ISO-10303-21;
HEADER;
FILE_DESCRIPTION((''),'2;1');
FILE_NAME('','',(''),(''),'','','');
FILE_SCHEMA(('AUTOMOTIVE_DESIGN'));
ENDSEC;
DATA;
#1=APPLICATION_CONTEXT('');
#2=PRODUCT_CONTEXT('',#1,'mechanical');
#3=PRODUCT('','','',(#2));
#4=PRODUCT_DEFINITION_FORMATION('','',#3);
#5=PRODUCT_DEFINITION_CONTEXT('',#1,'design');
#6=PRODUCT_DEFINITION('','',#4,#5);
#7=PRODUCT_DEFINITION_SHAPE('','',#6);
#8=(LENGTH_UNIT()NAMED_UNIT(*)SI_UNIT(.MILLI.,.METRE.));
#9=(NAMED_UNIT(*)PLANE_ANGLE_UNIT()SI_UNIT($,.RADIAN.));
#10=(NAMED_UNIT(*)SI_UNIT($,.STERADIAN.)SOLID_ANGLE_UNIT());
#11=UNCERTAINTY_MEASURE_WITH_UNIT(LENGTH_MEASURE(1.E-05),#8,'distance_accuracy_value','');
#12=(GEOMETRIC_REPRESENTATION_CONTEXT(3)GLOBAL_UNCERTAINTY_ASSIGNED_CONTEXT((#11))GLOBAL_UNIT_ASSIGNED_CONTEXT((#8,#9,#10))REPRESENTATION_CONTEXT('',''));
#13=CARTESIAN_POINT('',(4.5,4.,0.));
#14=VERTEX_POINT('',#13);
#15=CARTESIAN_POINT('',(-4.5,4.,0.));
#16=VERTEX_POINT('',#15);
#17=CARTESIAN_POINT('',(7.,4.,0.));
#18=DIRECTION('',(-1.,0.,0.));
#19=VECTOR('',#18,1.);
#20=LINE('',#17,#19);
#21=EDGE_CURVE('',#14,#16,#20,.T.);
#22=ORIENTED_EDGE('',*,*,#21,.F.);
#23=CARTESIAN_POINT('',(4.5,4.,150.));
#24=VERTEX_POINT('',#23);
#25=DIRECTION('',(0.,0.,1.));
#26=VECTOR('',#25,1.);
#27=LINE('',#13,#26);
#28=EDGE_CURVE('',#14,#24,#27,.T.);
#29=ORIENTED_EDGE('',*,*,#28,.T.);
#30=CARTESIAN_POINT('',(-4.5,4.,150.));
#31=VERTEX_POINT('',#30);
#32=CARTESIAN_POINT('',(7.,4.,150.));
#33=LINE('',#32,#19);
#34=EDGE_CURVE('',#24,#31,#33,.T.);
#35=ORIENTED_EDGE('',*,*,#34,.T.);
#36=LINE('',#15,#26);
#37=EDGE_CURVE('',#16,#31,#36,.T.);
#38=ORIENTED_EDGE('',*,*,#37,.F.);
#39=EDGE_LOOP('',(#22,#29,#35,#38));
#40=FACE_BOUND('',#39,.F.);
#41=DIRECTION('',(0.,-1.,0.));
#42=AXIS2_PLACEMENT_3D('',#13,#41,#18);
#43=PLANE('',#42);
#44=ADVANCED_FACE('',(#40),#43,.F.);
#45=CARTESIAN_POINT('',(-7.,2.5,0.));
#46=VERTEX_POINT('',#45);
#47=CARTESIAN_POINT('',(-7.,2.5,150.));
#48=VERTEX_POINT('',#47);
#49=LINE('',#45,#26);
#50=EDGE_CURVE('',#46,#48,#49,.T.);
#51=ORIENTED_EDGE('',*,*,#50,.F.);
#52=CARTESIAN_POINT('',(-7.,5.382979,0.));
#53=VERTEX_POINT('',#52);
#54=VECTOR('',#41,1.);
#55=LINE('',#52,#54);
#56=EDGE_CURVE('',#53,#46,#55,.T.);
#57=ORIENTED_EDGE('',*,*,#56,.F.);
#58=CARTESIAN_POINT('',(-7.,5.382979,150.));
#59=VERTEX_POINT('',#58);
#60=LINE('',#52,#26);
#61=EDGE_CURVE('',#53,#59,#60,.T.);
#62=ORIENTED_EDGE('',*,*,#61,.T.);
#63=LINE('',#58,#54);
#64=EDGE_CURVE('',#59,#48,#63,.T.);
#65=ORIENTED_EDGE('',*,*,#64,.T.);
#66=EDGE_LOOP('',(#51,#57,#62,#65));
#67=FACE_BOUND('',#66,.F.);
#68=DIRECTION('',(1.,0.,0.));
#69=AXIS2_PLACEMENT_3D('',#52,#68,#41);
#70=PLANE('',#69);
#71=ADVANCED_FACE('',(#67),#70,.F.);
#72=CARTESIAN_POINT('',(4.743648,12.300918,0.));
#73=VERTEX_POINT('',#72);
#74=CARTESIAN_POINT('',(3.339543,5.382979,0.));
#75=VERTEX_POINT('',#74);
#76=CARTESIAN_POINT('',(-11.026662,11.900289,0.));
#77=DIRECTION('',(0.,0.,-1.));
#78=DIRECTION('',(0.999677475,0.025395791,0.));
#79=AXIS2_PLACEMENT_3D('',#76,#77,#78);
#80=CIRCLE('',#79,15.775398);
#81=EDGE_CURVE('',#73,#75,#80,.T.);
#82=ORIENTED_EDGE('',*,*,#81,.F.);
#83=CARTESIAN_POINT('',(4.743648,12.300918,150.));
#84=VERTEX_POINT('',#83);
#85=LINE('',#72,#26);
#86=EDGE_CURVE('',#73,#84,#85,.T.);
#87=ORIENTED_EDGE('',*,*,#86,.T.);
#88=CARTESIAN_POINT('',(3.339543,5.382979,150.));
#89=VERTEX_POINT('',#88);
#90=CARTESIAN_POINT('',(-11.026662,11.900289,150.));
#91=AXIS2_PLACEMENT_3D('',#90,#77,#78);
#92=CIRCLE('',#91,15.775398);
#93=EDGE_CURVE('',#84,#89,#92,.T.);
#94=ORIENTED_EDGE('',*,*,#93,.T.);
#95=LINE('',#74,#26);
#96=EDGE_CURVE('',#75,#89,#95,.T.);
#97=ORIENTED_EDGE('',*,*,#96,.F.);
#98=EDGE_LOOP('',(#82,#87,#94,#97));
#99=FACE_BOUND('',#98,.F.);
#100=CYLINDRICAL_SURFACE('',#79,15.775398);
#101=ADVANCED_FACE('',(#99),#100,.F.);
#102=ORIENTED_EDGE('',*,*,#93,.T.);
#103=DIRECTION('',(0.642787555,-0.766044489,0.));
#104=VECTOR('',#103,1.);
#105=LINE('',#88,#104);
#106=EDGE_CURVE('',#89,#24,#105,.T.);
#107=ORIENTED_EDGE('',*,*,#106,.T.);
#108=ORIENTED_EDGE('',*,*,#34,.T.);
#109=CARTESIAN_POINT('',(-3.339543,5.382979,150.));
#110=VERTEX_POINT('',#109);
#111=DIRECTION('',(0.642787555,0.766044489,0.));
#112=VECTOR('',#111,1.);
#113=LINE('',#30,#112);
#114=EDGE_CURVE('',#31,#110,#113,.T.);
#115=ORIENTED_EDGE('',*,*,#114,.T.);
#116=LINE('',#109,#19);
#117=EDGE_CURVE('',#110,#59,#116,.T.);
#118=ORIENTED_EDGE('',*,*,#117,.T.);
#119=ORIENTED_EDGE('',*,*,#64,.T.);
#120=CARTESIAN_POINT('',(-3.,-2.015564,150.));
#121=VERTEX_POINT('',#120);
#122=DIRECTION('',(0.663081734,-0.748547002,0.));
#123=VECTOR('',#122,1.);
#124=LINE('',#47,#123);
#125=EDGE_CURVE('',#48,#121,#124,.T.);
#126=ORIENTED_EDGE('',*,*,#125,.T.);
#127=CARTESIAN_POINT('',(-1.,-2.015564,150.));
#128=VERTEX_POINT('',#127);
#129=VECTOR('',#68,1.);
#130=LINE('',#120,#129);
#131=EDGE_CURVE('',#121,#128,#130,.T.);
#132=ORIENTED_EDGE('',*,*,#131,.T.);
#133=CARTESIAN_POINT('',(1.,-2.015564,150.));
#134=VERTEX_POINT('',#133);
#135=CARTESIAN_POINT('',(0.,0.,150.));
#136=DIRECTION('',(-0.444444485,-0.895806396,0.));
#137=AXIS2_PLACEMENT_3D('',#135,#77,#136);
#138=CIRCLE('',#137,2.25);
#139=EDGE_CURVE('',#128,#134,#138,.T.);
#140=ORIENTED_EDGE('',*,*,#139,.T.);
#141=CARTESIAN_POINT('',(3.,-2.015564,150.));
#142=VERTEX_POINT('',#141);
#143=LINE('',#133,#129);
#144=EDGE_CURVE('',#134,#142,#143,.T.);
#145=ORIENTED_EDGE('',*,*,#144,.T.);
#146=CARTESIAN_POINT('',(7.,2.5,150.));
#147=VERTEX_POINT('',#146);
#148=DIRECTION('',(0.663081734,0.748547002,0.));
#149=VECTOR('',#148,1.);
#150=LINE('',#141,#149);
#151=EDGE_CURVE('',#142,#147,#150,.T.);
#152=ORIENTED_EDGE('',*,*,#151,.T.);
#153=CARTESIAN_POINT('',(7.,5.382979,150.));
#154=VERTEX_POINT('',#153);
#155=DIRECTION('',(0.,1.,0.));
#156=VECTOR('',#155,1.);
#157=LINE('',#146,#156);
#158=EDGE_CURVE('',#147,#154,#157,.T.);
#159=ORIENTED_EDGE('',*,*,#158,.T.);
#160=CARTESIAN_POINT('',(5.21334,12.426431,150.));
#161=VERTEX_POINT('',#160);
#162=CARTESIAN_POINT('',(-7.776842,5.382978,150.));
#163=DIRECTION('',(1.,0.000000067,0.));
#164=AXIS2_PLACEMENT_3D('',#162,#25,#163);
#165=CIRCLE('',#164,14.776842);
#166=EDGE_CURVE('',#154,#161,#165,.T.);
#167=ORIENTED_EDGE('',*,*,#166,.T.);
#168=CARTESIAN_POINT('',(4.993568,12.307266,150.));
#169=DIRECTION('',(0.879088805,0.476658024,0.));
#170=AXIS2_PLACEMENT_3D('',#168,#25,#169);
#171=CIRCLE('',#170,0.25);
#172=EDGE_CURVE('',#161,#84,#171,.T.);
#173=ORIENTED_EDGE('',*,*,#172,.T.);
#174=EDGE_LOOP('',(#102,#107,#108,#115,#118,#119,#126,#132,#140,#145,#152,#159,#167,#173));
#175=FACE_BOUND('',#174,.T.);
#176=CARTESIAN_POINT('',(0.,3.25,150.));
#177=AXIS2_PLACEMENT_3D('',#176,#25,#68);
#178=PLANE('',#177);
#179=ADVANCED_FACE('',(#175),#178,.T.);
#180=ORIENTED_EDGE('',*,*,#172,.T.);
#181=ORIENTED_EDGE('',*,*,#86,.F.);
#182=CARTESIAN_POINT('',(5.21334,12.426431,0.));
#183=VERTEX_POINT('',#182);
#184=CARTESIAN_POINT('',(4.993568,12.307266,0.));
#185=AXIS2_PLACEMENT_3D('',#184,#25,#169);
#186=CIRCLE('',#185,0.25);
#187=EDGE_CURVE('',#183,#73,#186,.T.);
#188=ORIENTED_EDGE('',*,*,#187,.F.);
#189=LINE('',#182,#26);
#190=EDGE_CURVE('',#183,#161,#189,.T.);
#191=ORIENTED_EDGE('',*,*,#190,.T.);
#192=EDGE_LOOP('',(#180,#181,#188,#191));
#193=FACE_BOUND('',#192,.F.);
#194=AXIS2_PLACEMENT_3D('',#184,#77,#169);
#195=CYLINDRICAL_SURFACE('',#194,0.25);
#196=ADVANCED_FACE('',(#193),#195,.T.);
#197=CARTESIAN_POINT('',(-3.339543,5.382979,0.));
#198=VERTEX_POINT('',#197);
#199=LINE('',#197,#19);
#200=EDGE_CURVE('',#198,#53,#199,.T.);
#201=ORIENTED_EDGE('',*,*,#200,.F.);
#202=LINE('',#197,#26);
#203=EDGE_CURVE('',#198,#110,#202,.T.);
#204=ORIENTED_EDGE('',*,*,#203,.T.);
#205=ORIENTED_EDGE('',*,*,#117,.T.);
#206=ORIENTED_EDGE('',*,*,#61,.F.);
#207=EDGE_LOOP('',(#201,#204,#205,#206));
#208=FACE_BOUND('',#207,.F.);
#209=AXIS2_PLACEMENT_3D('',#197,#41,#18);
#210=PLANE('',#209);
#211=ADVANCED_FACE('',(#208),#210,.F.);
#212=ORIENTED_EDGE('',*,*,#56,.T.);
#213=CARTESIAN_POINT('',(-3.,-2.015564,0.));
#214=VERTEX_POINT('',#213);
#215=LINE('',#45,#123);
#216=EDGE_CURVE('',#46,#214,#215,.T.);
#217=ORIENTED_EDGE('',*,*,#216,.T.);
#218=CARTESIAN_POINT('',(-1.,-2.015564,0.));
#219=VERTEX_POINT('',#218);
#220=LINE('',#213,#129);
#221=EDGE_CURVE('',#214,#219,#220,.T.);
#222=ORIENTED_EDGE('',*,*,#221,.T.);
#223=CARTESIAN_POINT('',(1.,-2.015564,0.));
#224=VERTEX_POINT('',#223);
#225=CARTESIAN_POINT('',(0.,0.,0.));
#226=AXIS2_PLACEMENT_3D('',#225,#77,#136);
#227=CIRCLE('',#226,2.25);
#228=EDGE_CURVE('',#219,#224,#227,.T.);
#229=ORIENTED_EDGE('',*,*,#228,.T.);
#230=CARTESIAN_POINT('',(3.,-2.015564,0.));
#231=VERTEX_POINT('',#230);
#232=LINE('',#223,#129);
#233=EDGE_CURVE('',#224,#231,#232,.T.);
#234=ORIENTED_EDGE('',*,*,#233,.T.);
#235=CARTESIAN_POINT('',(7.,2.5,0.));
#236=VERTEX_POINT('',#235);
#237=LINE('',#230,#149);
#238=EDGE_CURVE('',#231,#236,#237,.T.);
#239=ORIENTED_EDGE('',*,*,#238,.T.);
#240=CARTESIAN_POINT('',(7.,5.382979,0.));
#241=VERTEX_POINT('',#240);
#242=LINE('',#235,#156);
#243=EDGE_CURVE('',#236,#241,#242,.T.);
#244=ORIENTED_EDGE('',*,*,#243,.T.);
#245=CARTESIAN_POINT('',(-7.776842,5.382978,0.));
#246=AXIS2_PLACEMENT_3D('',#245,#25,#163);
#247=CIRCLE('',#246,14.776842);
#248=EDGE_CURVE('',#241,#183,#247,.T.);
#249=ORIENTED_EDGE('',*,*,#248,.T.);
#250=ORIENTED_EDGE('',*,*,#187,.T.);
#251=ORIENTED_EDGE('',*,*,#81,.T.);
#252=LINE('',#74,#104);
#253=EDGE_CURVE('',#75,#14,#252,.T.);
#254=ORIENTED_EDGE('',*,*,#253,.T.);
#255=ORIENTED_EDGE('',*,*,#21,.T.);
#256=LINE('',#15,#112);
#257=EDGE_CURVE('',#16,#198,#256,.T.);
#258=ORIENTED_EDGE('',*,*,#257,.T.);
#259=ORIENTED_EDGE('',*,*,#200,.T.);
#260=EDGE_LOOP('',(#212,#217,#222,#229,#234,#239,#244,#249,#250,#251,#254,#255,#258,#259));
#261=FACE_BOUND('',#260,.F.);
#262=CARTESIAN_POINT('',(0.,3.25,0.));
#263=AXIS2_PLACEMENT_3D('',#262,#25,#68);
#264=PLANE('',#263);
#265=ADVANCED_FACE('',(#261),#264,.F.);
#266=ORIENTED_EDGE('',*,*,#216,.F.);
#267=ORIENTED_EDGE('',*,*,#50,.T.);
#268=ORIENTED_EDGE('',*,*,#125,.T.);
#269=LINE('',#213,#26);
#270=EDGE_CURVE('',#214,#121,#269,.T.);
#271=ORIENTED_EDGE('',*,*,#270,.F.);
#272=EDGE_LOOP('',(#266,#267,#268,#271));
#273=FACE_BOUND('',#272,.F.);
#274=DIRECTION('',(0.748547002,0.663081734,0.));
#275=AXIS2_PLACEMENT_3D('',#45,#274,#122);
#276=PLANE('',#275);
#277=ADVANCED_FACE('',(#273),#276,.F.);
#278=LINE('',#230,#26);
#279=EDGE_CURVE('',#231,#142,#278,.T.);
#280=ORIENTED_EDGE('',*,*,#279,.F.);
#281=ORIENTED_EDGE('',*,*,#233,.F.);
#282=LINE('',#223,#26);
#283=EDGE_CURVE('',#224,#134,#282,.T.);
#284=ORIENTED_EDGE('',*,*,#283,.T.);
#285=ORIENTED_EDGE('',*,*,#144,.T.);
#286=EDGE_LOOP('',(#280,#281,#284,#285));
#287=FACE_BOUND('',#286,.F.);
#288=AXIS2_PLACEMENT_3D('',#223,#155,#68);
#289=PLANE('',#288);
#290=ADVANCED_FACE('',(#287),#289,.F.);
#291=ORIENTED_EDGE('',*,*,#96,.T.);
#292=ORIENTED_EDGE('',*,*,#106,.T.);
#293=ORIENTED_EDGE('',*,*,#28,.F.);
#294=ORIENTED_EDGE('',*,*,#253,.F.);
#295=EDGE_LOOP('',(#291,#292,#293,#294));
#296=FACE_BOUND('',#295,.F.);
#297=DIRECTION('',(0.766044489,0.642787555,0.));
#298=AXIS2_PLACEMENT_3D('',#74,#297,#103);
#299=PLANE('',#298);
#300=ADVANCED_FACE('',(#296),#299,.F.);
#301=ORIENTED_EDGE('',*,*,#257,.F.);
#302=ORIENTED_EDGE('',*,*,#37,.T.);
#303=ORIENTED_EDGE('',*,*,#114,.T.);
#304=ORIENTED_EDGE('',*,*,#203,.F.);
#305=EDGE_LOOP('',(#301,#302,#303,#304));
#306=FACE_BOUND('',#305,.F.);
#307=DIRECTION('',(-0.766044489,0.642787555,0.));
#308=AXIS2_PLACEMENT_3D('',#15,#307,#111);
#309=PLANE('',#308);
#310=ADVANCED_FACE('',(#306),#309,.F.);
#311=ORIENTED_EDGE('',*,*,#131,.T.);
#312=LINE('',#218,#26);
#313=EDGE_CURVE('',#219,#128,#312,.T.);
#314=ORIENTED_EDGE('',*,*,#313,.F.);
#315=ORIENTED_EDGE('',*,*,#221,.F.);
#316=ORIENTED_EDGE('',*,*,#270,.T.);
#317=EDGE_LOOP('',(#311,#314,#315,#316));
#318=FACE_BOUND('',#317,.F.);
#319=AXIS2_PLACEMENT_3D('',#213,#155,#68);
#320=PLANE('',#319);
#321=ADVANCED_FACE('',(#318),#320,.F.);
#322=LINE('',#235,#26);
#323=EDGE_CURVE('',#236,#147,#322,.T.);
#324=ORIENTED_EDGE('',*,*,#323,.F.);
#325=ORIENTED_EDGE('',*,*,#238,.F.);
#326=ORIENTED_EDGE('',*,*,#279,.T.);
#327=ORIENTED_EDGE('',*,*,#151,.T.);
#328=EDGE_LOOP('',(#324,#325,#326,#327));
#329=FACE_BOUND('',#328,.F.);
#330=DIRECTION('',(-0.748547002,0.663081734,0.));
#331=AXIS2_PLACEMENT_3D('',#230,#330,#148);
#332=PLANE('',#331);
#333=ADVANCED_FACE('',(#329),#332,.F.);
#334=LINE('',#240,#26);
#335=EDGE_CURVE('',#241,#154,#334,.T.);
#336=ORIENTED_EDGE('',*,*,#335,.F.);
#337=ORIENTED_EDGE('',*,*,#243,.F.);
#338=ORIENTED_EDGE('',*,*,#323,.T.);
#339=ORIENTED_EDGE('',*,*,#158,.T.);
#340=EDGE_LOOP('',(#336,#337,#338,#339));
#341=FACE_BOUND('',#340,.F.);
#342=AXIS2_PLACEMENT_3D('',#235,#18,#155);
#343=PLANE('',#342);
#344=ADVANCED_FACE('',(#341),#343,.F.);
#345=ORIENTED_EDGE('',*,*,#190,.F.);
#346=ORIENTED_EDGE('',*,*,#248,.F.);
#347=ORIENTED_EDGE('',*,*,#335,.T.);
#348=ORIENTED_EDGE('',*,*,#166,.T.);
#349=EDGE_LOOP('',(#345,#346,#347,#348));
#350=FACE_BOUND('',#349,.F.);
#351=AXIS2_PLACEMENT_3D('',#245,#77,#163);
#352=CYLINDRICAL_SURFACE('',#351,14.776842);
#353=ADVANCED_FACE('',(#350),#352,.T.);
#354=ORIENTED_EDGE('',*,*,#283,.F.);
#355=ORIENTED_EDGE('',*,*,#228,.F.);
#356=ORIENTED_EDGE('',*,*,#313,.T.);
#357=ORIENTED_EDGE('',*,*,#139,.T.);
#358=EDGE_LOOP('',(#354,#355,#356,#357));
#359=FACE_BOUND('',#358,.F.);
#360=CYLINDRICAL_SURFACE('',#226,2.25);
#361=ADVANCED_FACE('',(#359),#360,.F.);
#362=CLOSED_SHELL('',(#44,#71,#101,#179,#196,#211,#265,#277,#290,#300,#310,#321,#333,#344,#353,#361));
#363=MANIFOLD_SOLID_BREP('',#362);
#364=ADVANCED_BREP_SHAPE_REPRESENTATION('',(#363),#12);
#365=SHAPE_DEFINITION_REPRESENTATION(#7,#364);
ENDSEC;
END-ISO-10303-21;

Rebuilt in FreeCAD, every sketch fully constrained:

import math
import FreeCAD as App
import Part
import Sketcher
from FreeCAD import Vector
Q = App.Units.Quantity

doc = App.newDocument("Part")
params = doc.addObject("Spreadsheet::Sheet", "Params")
for row, (alias, value) in enumerate([
    ("sketch1_width", "9 mm"),
    ("sketch1_width2", "2 mm"),
    ("sketch1_radius", "0.25 mm"),
    ("sketch1_radius2", "2.25 mm"),
    ("pad1_length", "150 mm"),
], start=1):
    params.set(f"A{row}", alias)
    params.set(f"B{row}", "=" + value)
    params.setAlias(f"B{row}", alias)

body = doc.addObject("PartDesign::Body", "Body")

# Sketch on XY plane
sketch1 = body.newObject("Sketcher::SketchObject", "Sketch")
sketch1.AttachmentSupport = (doc.getObject("XY_Plane"), [""])
sketch1.MapMode = "FlatFace"
sketch1.addGeometry([
    Part.LineSegment(Vector(7, 2.5, 0), Vector(7, 5.38, 0)),  # 0
    Part.ArcOfCircle(Part.Circle(Vector(-7.78, 5.38, 0), Vector(0, 0, 1), 14.78), math.radians(0), math.radians(28)),  # 1
    Part.ArcOfCircle(Part.Circle(Vector(4.99, 12.31, 0), Vector(0, 0, 1), 0.25), math.radians(28), math.radians(181)),  # 2
    Part.ArcOfCircle(Part.Circle(Vector(-11.03, 11.9, 0), Vector(0, 0, 1), 15.78), math.radians(-24), math.radians(1)),  # 3
    Part.LineSegment(Vector(3.34, 5.38, 0), Vector(4.5, 4, 0)),  # 4
    Part.LineSegment(Vector(4.5, 4, 0), Vector(-4.5, 4, 0)),  # 5
    Part.LineSegment(Vector(-4.5, 4, 0), Vector(-3.34, 5.38, 0)),  # 6
    Part.LineSegment(Vector(-3.34, 5.38, 0), Vector(-7, 5.38, 0)),  # 7
    Part.LineSegment(Vector(-7, 5.38, 0), Vector(-7, 2.5, 0)),  # 8
    Part.LineSegment(Vector(-7, 2.5, 0), Vector(-3, -2.02, 0)),  # 9
    Part.LineSegment(Vector(-3, -2.02, 0), Vector(-1, -2.02, 0)),  # 10
    Part.ArcOfCircle(Part.Circle(Vector(0, 0, 0), Vector(0, 0, 1), 2.25), math.radians(-64), math.radians(244)),  # 11
    Part.LineSegment(Vector(1, -2.02, 0), Vector(3, -2.02, 0)),  # 12
    Part.LineSegment(Vector(3, -2.02, 0), Vector(7, 2.5, 0)),  # 13
], False)
sketch1.addConstraint([
    Sketcher.Constraint("Tangent", 0, 2, 1, 1),
    Sketcher.Constraint("Coincident", 1, 2, 2, 1),
    Sketcher.Constraint("Coincident", 2, 2, 3, 2),
    Sketcher.Constraint("Coincident", 3, 1, 4, 1),
    Sketcher.Constraint("Coincident", 4, 2, 5, 1),
    Sketcher.Constraint("Coincident", 5, 2, 6, 1),
    Sketcher.Constraint("Coincident", 6, 2, 7, 1),
    Sketcher.Constraint("Coincident", 7, 2, 8, 1),
    Sketcher.Constraint("Coincident", 8, 2, 9, 1),
    Sketcher.Constraint("Coincident", 9, 2, 10, 1),
    Sketcher.Constraint("Coincident", 10, 2, 11, 2),
    Sketcher.Constraint("Coincident", 11, 1, 12, 1),
    Sketcher.Constraint("Coincident", 12, 2, 13, 1),
    Sketcher.Constraint("Coincident", 13, 2, 0, 1),
    Sketcher.Constraint("Vertical", 0),
    Sketcher.Constraint("Horizontal", 5),
    Sketcher.Constraint("Horizontal", 7),
    Sketcher.Constraint("Vertical", 8),
    Sketcher.Constraint("Horizontal", 10),
    Sketcher.Constraint("Horizontal", 12),
    Sketcher.Constraint("Coincident", 11, 3, -1, 1),
    Sketcher.Constraint("Symmetric", 3, 1, 6, 2, -2),
    Sketcher.Constraint("Symmetric", 0, 2, 7, 2, -2),
    Sketcher.Constraint("Symmetric", 9, 2, 12, 2, -2),
    Sketcher.Constraint("Horizontal", 8, 2, 13, 2),
    Sketcher.Constraint("Equal", 4, 6),
    Sketcher.Constraint("DistanceX", 5, 2, 5, 1, Q("9 mm")),
    Sketcher.Constraint("DistanceX", 10, 1, 10, 2, Q("2 mm")),
    Sketcher.Constraint("Angle", 4, Q("-50.000004 deg")),
    Sketcher.Constraint("Radius", 2, Q("0.25 mm")),
    Sketcher.Constraint("Radius", 11, Q("2.25 mm")),
    Sketcher.Constraint("DistanceX", -1, 1, 0, 2, Q("7 mm")),
    Sketcher.Constraint("DistanceY", -1, 1, 4, 2, Q("4 mm")),
    Sketcher.Constraint("DistanceX", 9, 2, -1, 1, Q("3 mm")),
    Sketcher.Constraint("DistanceY", -1, 1, 8, 2, Q("2.5 mm")),
    Sketcher.Constraint("Radius", 1, Q("14.776842 mm")),
    Sketcher.Constraint("DistanceX", 3, 3, 1, 2, Q("16.240002 mm")),
    Sketcher.Constraint("Radius", 3, Q("15.775398 mm")),
    Sketcher.Constraint("DistanceY", 0, 1, 0, 2, Q("2.882979 mm")),
    Sketcher.Constraint("DistanceX", 3, 3, -1, 1, Q("11.026662 mm")),
    Sketcher.Constraint("DistanceX", -1, 1, 2, 2, Q("4.743648 mm")),
])
sketch1.setExpression("Constraints[26]", "Params.sketch1_width")
sketch1.setExpression("Constraints[27]", "Params.sketch1_width2")
sketch1.setExpression("Constraints[29]", "Params.sketch1_radius")
sketch1.setExpression("Constraints[30]", "Params.sketch1_radius2")
pad1 = body.newObject("PartDesign::Pad", "Pad")
pad1.Profile = sketch1
pad1.setExpression("Length", "Params.pad1_length")

doc.recompute()
